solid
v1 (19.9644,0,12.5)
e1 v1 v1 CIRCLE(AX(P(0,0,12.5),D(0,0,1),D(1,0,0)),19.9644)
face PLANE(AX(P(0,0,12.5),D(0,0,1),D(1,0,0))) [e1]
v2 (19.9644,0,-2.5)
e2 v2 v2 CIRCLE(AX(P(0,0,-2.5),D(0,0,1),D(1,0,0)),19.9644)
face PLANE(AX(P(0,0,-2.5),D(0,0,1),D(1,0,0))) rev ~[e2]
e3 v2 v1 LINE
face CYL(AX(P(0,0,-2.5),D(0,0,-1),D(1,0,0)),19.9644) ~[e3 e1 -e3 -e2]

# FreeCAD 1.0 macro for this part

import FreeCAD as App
import Part
import Sketcher

V = App.Vector

doc = App.newDocument("Part")
body = doc.addObject("PartDesign::Body", "Body")

sketch1 = body.newObject("Sketcher::SketchObject", "Sketch")
sketch1.AttachmentSupport = (doc.getObject("XY_Plane"), [""])
sketch1.MapMode = "FlatFace"
sketch1.AttachmentOffset = App.Placement(V(0, 0, -2.5), App.Rotation())
sketch1.addGeometry(Part.Circle(V(0, 0, 0), V(0, 0, 1), 20), False)
sketch1.addConstraint([
    Sketcher.Constraint("Coincident", 0, 3, -1, 1),
    Sketcher.Constraint("Diameter", 0, 39.9288),
])
pad1 = body.newObject("PartDesign::Pad", "Pad")
pad1.Profile = sketch1
pad1.Length = 15

doc.recompute()
